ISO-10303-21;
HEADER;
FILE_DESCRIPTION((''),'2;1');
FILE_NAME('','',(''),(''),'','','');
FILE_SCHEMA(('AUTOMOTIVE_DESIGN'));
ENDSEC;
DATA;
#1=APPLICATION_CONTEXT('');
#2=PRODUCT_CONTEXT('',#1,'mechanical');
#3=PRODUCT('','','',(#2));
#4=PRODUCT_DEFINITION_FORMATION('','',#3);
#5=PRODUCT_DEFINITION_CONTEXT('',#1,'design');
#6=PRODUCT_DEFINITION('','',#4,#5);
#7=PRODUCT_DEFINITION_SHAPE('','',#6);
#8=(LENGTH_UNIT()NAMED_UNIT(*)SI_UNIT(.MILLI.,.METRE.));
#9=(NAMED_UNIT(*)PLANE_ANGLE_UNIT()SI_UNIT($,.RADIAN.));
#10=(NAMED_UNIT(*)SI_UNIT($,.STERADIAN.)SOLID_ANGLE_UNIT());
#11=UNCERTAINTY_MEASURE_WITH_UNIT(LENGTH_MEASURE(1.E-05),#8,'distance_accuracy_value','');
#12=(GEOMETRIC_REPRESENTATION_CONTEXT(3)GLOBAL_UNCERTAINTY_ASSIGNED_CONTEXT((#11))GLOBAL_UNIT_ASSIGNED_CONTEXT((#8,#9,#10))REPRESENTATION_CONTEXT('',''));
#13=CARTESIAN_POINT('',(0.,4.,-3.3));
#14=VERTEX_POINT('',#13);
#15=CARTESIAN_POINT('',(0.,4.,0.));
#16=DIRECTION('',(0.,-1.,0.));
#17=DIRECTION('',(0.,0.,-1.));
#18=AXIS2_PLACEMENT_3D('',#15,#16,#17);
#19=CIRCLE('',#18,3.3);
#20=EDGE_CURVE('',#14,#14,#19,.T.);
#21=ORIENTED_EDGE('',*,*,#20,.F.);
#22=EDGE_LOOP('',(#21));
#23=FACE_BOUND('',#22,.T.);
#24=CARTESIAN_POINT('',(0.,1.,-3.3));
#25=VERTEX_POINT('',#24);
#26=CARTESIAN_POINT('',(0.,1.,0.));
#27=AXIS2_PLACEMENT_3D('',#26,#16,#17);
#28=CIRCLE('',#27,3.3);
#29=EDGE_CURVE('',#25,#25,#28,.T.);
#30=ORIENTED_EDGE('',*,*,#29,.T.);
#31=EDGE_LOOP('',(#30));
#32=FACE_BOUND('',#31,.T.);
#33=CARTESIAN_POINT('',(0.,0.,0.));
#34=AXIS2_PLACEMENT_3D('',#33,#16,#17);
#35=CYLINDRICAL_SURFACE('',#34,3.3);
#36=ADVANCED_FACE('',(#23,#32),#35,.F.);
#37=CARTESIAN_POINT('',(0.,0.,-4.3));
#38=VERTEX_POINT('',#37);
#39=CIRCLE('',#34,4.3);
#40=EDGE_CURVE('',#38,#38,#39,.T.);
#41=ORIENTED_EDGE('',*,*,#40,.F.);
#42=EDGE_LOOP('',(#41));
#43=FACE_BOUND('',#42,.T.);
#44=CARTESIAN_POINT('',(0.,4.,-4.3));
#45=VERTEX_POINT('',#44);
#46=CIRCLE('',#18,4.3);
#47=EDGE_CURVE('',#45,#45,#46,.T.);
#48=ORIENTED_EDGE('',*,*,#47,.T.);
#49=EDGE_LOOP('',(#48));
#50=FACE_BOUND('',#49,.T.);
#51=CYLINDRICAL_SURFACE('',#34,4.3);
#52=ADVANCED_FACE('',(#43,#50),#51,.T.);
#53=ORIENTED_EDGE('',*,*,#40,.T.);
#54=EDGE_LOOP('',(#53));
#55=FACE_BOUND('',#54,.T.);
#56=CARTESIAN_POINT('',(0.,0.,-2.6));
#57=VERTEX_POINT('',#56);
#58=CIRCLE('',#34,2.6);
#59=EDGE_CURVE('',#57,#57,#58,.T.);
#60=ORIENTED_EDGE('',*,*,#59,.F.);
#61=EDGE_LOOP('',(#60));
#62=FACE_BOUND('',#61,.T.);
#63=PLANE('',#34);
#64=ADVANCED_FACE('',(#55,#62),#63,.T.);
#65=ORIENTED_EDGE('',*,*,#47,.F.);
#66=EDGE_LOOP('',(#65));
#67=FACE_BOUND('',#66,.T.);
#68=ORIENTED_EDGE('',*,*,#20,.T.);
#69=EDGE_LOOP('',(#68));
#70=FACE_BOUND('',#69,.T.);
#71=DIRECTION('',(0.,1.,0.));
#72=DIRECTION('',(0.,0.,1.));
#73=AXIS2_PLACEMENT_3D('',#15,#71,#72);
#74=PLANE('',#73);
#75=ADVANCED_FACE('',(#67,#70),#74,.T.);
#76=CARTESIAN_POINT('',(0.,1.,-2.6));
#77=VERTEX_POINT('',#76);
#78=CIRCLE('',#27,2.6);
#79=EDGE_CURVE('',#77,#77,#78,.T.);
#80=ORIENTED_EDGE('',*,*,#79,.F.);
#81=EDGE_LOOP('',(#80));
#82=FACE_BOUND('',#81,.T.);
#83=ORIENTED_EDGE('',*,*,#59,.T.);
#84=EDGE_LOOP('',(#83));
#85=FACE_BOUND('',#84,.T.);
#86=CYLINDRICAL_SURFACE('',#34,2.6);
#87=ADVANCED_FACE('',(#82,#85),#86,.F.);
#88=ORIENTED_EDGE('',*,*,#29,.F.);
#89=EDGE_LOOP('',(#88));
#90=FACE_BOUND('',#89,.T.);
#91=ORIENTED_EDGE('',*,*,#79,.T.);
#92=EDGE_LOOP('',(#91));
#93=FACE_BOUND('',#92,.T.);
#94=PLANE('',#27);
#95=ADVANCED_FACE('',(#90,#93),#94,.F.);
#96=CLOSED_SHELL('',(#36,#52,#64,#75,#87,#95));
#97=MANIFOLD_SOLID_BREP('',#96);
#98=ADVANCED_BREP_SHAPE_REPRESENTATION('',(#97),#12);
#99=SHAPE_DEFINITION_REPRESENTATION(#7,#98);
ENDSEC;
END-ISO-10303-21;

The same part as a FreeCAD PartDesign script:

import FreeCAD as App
import Part
import Sketcher
from FreeCAD import Vector


def add_polygon(sketch, points):
    """Adds a closed chain of lines whose ends are joined by coincident constraints."""
    first, n = sketch.GeometryCount, len(points)
    for a, b in zip(points, points[1:] + points[:1]):
        sketch.addGeometry(Part.LineSegment(App.Vector(*a, 0), App.Vector(*b, 0)), False)
    for i in range(n):
        sketch.addConstraint(Sketcher.Constraint("Coincident", first + i, 2, first + (i + 1) % n, 1))

doc = App.newDocument("Part")
params = doc.addObject("Spreadsheet::Sheet", "Params")
for row, (alias, value) in enumerate([
    ("sketch1_width", "1 mm"),
    ("sketch1_height", "4 mm"),
    ("sketch1_width2", "1.7 mm"),
    ("revolution_angle", "360 deg"),
], start=1):
    params.set(f"A{row}", alias)
    params.set(f"B{row}", "=" + value)
    params.setAlias(f"B{row}", alias)

body = doc.addObject("PartDesign::Body", "Body")

# Sketch on XY plane
sketch1 = doc.addObject("Sketcher::SketchObject", "Sketch")
body.addObject(sketch1)
sketch1.AttachmentSupport = (doc.XY_Plane, [""])
sketch1.MapMode = "FlatFace"
add_polygon(sketch1, [(2.6, 1), (2.6, 0), (4.3, 0), (4.3, 4), (3.3, 4), (3.3, 1)])  # lines 0-5
sketch1.addConstraint(Sketcher.Constraint("Vertical", 0))
sketch1.addConstraint(Sketcher.Constraint("Horizontal", 1))
sketch1.addConstraint(Sketcher.Constraint("Vertical", 2))
sketch1.addConstraint(Sketcher.Constraint("Horizontal", 3))
sketch1.addConstraint(Sketcher.Constraint("Vertical", 4))
sketch1.addConstraint(Sketcher.Constraint("Horizontal", 5))
sketch1.addConstraint(Sketcher.Constraint("PointOnObject", 0, 2, -1))
sketch1.addConstraint(Sketcher.Constraint("Equal", 3, 0))
sketch1.addConstraint(Sketcher.Constraint("DistanceX", 3, 2, 3, 1, 1.0))
sketch1.addConstraint(Sketcher.Constraint("DistanceY", 2, 1, 2, 2, 4.0))
sketch1.addConstraint(Sketcher.Constraint("DistanceX", 1, 1, 1, 2, 1.7))
sketch1.addConstraint(Sketcher.Constraint("DistanceX", -1, 1, 0, 2, 2.6))
sketch1.setExpression("Constraints[14]", "Params.sketch1_width")
sketch1.setExpression("Constraints[15]", "Params.sketch1_height")
sketch1.setExpression("Constraints[16]", "Params.sketch1_width2")
revolution = doc.addObject("PartDesign::Revolution", "Revolution")
body.addObject(revolution)
revolution.Profile = sketch1
revolution.ReferenceAxis = (sketch1, ["V_Axis"])
revolution.setExpression("Angle", "Params.revolution_angle")

doc.recompute()
